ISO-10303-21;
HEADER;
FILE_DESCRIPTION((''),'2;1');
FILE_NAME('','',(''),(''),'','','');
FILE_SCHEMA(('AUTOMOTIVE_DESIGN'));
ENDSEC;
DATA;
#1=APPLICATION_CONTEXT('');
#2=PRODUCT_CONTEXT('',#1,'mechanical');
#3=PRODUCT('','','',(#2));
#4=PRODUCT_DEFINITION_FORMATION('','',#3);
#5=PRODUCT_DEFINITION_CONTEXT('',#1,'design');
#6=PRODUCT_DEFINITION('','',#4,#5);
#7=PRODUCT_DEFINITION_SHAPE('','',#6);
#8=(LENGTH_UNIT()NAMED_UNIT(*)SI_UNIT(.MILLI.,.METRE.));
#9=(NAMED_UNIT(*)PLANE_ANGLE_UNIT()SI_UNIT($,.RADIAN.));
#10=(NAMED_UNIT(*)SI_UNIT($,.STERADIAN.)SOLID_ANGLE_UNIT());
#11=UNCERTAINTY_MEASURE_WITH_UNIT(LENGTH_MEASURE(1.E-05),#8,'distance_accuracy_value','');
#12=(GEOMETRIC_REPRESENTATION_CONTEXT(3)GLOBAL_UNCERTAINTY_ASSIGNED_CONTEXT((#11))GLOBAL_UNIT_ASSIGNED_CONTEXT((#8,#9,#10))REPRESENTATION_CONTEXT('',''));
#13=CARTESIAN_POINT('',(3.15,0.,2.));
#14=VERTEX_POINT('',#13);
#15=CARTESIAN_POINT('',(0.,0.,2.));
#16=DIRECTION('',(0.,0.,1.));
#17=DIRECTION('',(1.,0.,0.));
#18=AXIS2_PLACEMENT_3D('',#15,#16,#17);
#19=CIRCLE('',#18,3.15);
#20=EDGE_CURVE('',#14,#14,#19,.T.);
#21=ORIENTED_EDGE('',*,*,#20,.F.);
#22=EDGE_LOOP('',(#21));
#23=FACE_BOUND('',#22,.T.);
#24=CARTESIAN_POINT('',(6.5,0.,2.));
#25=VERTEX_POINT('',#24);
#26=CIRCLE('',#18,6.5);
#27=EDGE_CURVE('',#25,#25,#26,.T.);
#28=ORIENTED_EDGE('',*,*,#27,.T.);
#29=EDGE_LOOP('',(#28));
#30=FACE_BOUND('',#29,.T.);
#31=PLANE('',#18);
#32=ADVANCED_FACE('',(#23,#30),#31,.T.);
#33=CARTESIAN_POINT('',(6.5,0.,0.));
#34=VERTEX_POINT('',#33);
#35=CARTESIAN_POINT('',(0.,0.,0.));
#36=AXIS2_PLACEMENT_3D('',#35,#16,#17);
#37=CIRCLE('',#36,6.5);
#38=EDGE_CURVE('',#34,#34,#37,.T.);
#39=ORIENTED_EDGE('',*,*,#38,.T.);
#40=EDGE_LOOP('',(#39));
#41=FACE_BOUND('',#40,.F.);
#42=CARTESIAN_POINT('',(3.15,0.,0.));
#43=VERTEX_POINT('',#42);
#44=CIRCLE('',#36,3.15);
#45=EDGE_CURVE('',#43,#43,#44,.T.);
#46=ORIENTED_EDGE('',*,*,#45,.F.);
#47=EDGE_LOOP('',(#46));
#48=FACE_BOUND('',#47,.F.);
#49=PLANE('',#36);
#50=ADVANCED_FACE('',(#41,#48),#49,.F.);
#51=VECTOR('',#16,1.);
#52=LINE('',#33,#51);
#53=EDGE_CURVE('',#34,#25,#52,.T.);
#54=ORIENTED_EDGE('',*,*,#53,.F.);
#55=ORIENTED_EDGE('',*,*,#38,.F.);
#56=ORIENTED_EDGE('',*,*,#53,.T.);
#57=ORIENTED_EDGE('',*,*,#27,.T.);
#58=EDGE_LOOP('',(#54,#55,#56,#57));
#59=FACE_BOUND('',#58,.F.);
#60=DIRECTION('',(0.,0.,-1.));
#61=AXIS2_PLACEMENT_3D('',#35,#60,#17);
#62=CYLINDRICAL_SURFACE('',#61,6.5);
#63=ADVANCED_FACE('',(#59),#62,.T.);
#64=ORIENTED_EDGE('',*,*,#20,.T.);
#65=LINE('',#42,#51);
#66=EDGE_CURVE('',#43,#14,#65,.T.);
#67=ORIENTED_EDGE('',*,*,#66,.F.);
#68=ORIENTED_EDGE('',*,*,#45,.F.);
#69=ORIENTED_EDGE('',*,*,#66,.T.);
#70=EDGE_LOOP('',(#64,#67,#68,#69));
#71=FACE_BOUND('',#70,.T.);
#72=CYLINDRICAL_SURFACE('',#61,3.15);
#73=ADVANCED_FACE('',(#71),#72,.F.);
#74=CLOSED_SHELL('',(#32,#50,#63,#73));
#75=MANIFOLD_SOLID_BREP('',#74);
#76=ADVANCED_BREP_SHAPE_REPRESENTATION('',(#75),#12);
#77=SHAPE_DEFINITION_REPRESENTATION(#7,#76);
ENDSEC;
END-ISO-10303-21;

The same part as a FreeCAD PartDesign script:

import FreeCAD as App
import Part
import Sketcher

doc = App.newDocument("Part")
body = doc.addObject("PartDesign::Body", "Body")

# Sketch on XY plane
sketch1 = body.newObject("Sketcher::SketchObject", "Sketch")
sketch1.AttachmentSupport = (doc.getObject("XY_Plane"), [""])
sketch1.MapMode = "FlatFace"
sketch1.addGeometry([
    Part.Circle(App.Vector(0, 0, 0), App.Vector(0, 0, 1), 6.5),
    Part.Circle(App.Vector(0, 0, 0), App.Vector(0, 0, 1), 3.15),
], False)
sketch1.addConstraint([
    Sketcher.Constraint("Coincident", 0, 3, -1, 1),
    Sketcher.Constraint("Coincident", 1, 3, -1, 1),
    Sketcher.Constraint("Diameter", 0, 13.0),
    Sketcher.Constraint("Diameter", 1, 6.3),
])
pad1 = body.newObject("PartDesign::Pad", "Pad")
pad1.Profile = sketch1
pad1.Length = 2

doc.recompute()
